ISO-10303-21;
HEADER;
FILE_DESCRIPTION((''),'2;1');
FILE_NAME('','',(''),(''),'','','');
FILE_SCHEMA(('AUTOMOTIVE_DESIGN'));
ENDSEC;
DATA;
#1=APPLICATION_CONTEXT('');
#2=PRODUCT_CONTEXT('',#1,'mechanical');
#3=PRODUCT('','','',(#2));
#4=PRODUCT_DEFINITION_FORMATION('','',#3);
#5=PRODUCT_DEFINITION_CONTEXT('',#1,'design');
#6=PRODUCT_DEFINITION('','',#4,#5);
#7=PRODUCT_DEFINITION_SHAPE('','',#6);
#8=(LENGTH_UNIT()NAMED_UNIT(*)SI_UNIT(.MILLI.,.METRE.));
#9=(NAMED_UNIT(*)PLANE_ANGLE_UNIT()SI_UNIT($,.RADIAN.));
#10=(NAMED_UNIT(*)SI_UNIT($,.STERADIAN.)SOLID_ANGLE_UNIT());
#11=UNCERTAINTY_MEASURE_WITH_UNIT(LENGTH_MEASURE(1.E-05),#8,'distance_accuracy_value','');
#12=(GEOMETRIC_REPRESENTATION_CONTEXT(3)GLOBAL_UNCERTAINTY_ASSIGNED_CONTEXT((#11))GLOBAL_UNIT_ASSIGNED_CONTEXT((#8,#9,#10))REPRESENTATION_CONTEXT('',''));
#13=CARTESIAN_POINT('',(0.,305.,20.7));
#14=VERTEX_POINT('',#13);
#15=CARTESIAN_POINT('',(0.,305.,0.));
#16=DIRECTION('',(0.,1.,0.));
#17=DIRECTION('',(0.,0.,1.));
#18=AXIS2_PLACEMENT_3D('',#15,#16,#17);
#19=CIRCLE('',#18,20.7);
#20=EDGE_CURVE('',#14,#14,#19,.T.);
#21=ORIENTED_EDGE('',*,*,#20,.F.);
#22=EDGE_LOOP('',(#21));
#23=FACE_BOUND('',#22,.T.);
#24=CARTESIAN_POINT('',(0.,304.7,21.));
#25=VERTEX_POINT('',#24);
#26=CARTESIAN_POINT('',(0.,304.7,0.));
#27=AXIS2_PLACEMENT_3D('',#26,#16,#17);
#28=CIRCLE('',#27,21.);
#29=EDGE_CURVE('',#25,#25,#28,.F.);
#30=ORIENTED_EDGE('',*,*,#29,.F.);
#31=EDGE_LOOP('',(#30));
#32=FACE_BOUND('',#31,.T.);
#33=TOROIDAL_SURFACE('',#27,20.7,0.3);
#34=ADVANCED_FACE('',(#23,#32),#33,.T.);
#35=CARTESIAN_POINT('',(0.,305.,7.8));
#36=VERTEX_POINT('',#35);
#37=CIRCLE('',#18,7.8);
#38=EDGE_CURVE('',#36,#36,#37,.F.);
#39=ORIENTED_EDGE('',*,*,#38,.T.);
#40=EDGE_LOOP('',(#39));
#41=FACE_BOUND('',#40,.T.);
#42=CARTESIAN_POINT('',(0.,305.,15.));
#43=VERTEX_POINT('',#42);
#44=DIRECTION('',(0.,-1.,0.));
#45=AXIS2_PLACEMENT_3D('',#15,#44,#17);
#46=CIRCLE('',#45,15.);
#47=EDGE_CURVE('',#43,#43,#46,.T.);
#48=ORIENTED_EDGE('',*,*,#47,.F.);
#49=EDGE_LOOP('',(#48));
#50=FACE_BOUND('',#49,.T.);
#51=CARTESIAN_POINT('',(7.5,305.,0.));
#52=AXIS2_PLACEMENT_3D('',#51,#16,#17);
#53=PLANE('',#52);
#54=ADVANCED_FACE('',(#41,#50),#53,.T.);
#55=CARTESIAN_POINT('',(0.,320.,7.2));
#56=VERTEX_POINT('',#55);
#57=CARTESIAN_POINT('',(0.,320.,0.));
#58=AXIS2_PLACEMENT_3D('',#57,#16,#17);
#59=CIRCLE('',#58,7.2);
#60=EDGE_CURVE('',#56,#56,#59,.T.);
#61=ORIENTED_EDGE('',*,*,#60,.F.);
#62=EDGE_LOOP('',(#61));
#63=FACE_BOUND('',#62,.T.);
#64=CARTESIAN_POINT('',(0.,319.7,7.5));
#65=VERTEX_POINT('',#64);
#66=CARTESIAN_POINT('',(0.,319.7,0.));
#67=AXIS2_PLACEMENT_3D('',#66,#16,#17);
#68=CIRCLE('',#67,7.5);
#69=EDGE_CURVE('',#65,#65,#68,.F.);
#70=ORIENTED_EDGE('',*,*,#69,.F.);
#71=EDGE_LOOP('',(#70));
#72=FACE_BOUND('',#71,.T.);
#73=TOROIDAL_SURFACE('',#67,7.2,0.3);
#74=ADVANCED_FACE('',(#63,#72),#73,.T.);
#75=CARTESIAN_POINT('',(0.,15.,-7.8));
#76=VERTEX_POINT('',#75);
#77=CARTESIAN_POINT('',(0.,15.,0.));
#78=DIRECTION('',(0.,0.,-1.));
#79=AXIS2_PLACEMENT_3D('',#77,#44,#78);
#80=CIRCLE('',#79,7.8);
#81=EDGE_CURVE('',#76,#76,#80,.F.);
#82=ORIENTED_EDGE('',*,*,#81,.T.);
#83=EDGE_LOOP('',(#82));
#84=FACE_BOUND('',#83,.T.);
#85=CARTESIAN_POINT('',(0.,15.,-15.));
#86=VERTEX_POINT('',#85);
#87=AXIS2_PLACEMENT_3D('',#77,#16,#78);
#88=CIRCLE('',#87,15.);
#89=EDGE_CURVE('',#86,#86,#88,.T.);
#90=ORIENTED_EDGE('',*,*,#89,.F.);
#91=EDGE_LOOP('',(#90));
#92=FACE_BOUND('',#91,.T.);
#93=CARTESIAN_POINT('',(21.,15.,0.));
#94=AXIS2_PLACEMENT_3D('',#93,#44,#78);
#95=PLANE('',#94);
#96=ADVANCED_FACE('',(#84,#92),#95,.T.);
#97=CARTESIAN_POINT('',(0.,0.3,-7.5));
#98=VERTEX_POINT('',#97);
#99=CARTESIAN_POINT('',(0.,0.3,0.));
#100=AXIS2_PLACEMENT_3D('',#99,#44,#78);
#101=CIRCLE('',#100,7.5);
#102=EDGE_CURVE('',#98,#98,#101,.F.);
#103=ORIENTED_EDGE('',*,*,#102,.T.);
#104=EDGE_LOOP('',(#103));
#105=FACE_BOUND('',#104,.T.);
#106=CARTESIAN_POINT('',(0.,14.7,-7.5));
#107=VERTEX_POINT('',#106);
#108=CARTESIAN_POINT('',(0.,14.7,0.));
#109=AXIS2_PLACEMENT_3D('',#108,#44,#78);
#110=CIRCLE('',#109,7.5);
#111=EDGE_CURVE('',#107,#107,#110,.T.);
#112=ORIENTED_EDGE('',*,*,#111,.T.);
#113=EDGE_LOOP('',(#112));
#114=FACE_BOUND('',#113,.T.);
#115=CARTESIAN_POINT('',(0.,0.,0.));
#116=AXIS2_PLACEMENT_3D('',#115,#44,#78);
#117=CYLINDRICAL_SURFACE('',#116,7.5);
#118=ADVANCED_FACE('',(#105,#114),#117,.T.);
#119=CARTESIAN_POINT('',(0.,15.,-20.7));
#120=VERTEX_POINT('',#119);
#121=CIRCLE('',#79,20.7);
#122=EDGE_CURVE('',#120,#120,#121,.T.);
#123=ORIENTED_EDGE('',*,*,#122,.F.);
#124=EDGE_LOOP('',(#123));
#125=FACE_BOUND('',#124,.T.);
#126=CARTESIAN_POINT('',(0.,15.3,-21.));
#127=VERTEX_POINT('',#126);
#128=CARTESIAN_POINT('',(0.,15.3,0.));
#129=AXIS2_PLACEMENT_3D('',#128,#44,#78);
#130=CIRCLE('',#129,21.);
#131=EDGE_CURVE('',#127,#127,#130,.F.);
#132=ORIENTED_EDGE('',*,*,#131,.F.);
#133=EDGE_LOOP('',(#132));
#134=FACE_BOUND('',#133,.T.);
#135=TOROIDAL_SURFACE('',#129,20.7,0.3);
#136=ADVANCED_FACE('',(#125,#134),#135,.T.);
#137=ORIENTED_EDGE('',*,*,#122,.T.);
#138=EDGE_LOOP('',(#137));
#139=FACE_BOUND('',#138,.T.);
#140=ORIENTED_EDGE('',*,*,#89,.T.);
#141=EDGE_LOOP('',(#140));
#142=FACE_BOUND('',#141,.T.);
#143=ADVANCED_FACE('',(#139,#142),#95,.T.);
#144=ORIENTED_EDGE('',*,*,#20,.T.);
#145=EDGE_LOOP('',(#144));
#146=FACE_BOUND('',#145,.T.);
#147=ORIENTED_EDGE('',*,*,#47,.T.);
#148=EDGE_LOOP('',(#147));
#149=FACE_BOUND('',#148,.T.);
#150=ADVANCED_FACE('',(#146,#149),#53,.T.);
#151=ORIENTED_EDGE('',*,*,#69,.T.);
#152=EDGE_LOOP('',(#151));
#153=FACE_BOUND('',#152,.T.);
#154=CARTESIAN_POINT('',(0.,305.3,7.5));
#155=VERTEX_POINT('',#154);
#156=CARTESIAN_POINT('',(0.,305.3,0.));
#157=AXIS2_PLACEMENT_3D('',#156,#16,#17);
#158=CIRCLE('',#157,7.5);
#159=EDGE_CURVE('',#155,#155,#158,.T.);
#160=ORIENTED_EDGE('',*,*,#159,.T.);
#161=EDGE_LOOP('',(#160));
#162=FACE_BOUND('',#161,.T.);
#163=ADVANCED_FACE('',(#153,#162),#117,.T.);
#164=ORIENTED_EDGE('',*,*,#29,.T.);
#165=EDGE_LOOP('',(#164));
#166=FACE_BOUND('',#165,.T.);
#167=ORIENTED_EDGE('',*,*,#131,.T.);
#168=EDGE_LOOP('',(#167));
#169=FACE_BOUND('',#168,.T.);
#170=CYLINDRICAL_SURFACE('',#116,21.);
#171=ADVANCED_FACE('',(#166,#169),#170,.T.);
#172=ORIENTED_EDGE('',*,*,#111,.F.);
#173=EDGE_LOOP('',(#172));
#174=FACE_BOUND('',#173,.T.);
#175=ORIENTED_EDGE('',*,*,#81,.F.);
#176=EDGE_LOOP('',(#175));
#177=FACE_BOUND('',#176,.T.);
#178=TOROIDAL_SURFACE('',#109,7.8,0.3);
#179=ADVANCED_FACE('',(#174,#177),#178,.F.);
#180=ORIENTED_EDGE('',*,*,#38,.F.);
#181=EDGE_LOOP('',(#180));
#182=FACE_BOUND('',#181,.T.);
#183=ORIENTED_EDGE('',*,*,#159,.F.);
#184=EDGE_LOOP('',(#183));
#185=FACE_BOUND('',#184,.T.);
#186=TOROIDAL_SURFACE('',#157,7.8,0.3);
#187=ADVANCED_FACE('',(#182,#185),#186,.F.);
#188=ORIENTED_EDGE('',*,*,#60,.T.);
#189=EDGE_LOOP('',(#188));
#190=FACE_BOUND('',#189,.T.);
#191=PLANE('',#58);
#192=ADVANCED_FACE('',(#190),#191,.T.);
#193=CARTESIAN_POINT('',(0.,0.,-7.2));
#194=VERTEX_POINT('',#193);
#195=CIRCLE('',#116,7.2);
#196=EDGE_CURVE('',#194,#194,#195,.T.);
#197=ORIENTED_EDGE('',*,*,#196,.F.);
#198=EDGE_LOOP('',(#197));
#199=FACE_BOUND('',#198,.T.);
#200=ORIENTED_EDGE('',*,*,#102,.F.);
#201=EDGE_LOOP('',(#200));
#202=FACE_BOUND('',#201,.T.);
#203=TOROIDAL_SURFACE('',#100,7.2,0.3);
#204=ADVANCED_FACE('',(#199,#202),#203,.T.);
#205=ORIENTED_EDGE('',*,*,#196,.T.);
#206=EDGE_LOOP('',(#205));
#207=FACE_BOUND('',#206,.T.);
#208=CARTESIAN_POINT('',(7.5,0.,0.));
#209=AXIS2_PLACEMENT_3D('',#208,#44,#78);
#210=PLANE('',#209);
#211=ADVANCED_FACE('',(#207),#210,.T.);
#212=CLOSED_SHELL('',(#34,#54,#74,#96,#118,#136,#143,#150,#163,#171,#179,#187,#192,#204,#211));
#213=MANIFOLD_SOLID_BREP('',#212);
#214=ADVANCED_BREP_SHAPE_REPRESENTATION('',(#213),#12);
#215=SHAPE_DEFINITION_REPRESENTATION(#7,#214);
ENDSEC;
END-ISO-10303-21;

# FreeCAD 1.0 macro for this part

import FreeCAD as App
import Part
import Sketcher


def edges_at(feature, points):
    """Names of the edges that pass closest to the given points."""
    edges = feature.Shape.Edges
    near = lambda p: min(range(len(edges)), key=lambda i: edges[i].distToShape(Part.Vertex(*p))[0])
    return sorted({f"Edge{near(p) + 1}" for p in points})

doc = App.newDocument("Part")
body = doc.addObject("PartDesign::Body", "Body")

# Sketch on XY plane
sketch1 = body.newObject("Sketcher::SketchObject", "Sketch")
sketch1.AttachmentSupport = (doc.getObject("XY_Plane"), [""])
sketch1.MapMode = "FlatFace"
sketch1.addGeometry([
    Part.LineSegment(App.Vector(0, 320, 0), App.Vector(0, 0, 0)),  # 0
    Part.LineSegment(App.Vector(0, 0, 0), App.Vector(8, 0, 0)),  # 1
    Part.LineSegment(App.Vector(8, 0, 0), App.Vector(8, 15, 0)),  # 2
    Part.LineSegment(App.Vector(8, 15, 0), App.Vector(21, 15, 0)),  # 3
    Part.LineSegment(App.Vector(21, 15, 0), App.Vector(21, 305, 0)),  # 4
    Part.LineSegment(App.Vector(21, 305, 0), App.Vector(8, 305, 0)),  # 5
    Part.LineSegment(App.Vector(8, 305, 0), App.Vector(8, 320, 0)),  # 6
    Part.LineSegment(App.Vector(8, 320, 0), App.Vector(0, 320, 0)),  # 7
], False)
sketch1.addConstraint([
    Sketcher.Constraint("Coincident", 0, 2, 1, 1),
    Sketcher.Constraint("Coincident", 1, 2, 2, 1),
    Sketcher.Constraint("Coincident", 2, 2, 3, 1),
    Sketcher.Constraint("Coincident", 3, 2, 4, 1),
    Sketcher.Constraint("Coincident", 4, 2, 5, 1),
    Sketcher.Constraint("Coincident", 5, 2, 6, 1),
    Sketcher.Constraint("Coincident", 6, 2, 7, 1),
    Sketcher.Constraint("Coincident", 7, 2, 0, 1),
    Sketcher.Constraint("Vertical", 0),
    Sketcher.Constraint("Horizontal", 1),
    Sketcher.Constraint("Vertical", 2),
    Sketcher.Constraint("Horizontal", 3),
    Sketcher.Constraint("Vertical", 4),
    Sketcher.Constraint("Horizontal", 5),
    Sketcher.Constraint("Vertical", 6),
    Sketcher.Constraint("Horizontal", 7),
    Sketcher.Constraint("Coincident", 0, 2, -1, 1),
    Sketcher.Constraint("Vertical", 2, 2, 5, 2),
    Sketcher.Constraint("Equal", 2, 6),
    Sketcher.Constraint("DistanceY", 0, 2, 0, 1, 320.0),
    Sketcher.Constraint("DistanceY", 2, 1, 2, 2, 15.0),
    Sketcher.Constraint("DistanceX", 1, 1, 1, 2, 7.5),
    Sketcher.Constraint("DistanceX", 3, 1, 3, 2, 13.5),
])
revolution = body.newObject("PartDesign::Revolution", "Revolution")
revolution.Profile = sketch1
revolution.ReferenceAxis = (sketch1, ["V_Axis"])
revolution.Angle = 360
doc.recompute()

fillet = body.newObject("PartDesign::Fillet", "Fillet")
fillet.Base = (revolution, edges_at(revolution, [
    (0, 0, 7.5),
    (0, 15, 7.5),
    (0, 15, 21),
    (0, 305, 21),
    (0, 305, 7.5),
    (0, 320, 7.5),
]))
fillet.Radius = 0.3

doc.recompute()
